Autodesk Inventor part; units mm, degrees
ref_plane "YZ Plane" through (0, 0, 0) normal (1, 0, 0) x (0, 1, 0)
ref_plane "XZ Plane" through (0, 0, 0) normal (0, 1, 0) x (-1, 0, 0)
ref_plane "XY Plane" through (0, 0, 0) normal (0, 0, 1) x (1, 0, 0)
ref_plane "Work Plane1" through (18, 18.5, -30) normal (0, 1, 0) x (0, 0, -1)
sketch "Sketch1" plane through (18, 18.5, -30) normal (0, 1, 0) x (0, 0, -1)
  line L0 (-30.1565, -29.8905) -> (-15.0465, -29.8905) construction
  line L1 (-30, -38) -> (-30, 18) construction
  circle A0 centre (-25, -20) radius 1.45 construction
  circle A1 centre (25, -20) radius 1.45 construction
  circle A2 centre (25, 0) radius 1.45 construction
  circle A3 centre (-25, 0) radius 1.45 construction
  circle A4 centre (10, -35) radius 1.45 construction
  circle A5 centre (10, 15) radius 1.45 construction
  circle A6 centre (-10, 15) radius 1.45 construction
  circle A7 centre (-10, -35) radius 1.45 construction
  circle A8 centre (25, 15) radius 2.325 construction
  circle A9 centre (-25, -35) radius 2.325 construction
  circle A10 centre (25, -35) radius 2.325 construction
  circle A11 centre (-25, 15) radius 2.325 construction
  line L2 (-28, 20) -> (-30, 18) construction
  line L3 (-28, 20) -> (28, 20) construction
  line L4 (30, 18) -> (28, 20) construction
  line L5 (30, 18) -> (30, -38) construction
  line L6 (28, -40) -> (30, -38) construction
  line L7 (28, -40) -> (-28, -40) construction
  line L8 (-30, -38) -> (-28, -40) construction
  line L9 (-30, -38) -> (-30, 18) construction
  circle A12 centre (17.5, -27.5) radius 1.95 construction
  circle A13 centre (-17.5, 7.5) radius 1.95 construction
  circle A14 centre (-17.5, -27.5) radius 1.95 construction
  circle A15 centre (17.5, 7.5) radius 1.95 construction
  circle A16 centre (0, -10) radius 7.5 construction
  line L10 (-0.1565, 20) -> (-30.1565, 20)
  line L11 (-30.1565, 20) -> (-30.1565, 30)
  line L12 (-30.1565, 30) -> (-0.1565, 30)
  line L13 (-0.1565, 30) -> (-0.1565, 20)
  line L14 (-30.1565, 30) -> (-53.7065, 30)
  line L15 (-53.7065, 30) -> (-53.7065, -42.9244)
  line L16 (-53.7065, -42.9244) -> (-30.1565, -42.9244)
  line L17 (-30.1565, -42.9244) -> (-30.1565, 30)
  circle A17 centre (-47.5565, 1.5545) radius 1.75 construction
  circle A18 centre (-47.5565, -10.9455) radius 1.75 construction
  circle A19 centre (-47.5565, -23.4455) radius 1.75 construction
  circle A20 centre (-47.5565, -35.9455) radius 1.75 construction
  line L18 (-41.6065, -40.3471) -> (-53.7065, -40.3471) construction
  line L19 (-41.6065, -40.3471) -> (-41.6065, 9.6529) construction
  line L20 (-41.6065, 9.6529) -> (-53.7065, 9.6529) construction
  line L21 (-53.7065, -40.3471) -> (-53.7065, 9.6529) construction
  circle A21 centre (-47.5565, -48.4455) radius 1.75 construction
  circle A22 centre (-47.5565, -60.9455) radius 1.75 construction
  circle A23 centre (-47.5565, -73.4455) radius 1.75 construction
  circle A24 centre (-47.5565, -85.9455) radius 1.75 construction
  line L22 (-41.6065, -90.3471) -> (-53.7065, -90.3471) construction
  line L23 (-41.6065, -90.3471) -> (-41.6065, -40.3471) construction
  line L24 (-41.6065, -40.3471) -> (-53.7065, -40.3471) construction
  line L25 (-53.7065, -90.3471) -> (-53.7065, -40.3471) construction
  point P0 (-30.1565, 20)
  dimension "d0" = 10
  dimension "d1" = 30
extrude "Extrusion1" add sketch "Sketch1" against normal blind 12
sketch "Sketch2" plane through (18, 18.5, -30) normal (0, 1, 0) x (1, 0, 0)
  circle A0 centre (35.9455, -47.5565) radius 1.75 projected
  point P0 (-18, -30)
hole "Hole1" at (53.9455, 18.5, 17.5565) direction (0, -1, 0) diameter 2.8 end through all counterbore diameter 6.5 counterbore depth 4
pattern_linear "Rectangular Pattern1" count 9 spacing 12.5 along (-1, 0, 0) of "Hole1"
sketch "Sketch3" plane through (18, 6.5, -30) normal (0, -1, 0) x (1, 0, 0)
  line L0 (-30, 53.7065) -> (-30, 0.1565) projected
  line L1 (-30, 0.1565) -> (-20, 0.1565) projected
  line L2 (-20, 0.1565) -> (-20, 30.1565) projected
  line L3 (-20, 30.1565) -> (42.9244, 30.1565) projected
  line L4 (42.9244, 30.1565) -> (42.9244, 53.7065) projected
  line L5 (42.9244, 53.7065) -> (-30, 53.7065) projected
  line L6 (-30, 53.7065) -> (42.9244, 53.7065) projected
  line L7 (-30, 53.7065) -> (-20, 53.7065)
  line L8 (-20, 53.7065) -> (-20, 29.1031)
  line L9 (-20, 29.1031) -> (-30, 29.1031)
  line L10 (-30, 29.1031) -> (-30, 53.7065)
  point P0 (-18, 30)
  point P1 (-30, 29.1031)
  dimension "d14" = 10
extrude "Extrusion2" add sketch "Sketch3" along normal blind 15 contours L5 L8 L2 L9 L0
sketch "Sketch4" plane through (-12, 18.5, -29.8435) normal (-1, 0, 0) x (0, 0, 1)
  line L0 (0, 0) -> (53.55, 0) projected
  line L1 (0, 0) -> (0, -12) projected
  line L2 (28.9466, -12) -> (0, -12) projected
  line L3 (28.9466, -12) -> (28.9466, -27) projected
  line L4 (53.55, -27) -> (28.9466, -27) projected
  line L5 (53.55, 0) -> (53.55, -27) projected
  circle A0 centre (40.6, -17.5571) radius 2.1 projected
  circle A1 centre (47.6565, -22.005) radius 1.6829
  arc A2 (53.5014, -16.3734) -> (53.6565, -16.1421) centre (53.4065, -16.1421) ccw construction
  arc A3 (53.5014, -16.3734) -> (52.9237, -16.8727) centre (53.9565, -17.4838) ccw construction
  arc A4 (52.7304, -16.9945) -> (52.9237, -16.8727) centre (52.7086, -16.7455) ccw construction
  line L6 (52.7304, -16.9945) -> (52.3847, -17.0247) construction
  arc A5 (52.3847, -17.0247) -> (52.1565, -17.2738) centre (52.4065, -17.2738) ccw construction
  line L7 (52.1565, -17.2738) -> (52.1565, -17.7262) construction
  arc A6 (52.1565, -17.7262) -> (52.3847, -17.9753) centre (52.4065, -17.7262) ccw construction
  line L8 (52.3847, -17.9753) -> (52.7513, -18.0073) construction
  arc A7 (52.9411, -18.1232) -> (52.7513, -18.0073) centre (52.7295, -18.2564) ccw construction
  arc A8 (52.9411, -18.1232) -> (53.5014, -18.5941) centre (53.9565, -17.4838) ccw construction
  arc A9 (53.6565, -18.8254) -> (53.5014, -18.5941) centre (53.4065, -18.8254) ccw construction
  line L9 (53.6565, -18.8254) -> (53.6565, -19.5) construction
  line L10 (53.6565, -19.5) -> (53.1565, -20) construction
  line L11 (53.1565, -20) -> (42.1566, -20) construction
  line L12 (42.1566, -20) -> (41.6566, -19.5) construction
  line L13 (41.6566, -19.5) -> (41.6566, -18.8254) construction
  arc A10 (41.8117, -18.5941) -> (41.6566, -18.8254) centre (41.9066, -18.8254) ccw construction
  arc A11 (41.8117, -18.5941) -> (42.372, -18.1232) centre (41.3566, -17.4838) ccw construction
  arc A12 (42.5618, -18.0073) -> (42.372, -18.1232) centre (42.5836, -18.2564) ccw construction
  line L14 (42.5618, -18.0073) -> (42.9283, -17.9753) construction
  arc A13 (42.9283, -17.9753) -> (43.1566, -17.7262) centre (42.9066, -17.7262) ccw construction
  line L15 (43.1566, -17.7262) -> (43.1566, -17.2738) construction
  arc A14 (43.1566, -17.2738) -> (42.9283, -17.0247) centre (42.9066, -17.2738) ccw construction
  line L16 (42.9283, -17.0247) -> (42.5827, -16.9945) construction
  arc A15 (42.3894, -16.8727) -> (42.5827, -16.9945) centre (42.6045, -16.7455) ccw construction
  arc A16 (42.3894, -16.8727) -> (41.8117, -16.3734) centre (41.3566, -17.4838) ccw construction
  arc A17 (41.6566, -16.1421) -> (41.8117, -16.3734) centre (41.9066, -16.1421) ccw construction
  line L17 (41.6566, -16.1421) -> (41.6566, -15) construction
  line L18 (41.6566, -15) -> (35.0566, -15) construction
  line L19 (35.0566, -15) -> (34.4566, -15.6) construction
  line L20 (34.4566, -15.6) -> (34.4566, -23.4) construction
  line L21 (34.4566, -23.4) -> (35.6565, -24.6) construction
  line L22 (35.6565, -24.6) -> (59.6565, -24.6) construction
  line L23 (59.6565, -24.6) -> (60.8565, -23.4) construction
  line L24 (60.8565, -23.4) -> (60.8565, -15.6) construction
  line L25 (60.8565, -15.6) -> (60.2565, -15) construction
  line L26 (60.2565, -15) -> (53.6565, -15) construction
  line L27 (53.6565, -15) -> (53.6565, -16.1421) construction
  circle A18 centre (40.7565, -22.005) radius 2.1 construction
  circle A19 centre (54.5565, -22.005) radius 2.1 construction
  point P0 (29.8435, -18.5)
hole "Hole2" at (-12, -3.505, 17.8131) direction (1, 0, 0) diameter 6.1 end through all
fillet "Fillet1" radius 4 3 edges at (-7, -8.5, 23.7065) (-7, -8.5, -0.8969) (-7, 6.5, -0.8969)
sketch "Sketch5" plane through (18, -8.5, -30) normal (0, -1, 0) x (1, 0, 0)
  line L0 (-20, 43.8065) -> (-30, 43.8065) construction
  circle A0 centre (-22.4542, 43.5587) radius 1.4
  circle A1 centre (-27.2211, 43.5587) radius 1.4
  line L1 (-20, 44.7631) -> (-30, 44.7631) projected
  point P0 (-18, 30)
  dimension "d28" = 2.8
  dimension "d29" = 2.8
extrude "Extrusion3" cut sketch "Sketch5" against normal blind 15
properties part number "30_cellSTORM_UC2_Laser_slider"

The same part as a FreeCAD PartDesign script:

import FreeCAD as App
import Part
import Sketcher

V = App.Vector


def edges_at(feature, points):
    """Names of the edges that pass closest to the given points."""
    edges = feature.Shape.Edges
    near = lambda p: min(range(len(edges)), key=lambda i: edges[i].distToShape(Part.Vertex(*p))[0])
    return sorted({f"Edge{near(p) + 1}" for p in points})

doc = App.newDocument("Part")
body = doc.addObject("PartDesign::Body", "Body")

sketch1 = body.newObject("Sketcher::SketchObject", "Sketch")
sketch1.AttachmentSupport = (doc.getObject("XZ_Plane"), [""])
sketch1.MapMode = "FlatFace"
sketch1.AttachmentOffset = App.Placement(V(0, 0, -18.5), App.Rotation())
sketch1.addGeometry(Part.LineSegment(V(-2, 0, 0), V(-2, -30, 0)), False)
sketch1.addGeometry(Part.LineSegment(V(-2, -30, 0), V(-12, -30, 0)), False)
sketch1.addGeometry(Part.LineSegment(V(-12, -30, 0), V(-12, 24, 0)), False)
sketch1.addGeometry(Part.LineSegment(V(-12, 24, 0), V(61, 24, 0)), False)
sketch1.addGeometry(Part.LineSegment(V(61, 24, 0), V(61, 0, 0)), False)
sketch1.addGeometry(Part.LineSegment(V(61, 0, 0), V(-2, 0, 0)), False)
sketch1.addConstraint(Sketcher.Constraint("Coincident", 0, 2, 1, 1))
sketch1.addConstraint(Sketcher.Constraint("Coincident", 1, 2, 2, 1))
sketch1.addConstraint(Sketcher.Constraint("Coincident", 2, 2, 3, 1))
sketch1.addConstraint(Sketcher.Constraint("Coincident", 3, 2, 4, 1))
sketch1.addConstraint(Sketcher.Constraint("Coincident", 4, 2, 5, 1))
sketch1.addConstraint(Sketcher.Constraint("Coincident", 5, 2, 0, 1))
sketch1.addConstraint(Sketcher.Constraint("Vertical", 0))
sketch1.addConstraint(Sketcher.Constraint("Horizontal", 1))
sketch1.addConstraint(Sketcher.Constraint("Vertical", 2))
sketch1.addConstraint(Sketcher.Constraint("Horizontal", 3))
sketch1.addConstraint(Sketcher.Constraint("Vertical", 4))
sketch1.addConstraint(Sketcher.Constraint("Horizontal", 5))
sketch1.addConstraint(Sketcher.Constraint("DistanceX", 1, 2, 1, 1, 10.0))
sketch1.addConstraint(Sketcher.Constraint("DistanceY", 0, 2, 0, 1, 30.0))
sketch1.addConstraint(Sketcher.Constraint("DistanceX", 0, 2, -1, 1, 2.0))
sketch1.addConstraint(Sketcher.Constraint("DistanceY", 2, 1, 2, 2, 53.55))
sketch1.addConstraint(Sketcher.Constraint("DistanceX", 3, 1, 3, 2, 72.9244))
sketch1.addConstraint(Sketcher.Constraint("DistanceY", 0, 2, -1, 1, 29.8435))
pad1 = body.newObject("PartDesign::Pad", "Pad")
pad1.Profile = sketch1
pad1.Length = 12

sketch2 = body.newObject("Sketcher::SketchObject", "Sketch001")
sketch2.AttachmentSupport = (doc.getObject("XZ_Plane"), [""])
sketch2.MapMode = "FlatFace"
sketch2.AttachmentOffset = App.Placement(V(0, 0, -18.5), App.Rotation())
sketch2.addGeometry(Part.Circle(V(53.9, 17.6, 0), V(0, 0, 1), 1.4), False)
sketch2.addConstraint(Sketcher.Constraint("Diameter", 0, 2.8))
sketch2.addConstraint(Sketcher.Constraint("DistanceX", -1, 1, 0, 3, 53.9455))
sketch2.addConstraint(Sketcher.Constraint("DistanceY", -1, 1, 0, 3, 17.5565))
doc.recompute()
hole = body.newObject("PartDesign::Hole", "Hole")
hole.Profile = sketch2
hole.ThreadType = "None"
hole.Diameter = 2.8
hole.DepthType = "ThroughAll"
hole.HoleCutType = "Counterbore"
hole.HoleCutDiameter = 6.5
hole.HoleCutDepth = 4
hole.Reversed = True
doc.recompute()

linearpattern = body.newObject("PartDesign::LinearPattern", "LinearPattern")
linearpattern.Originals = [hole]
linearpattern.Direction = (doc.getObject("X_Axis"), [""])
linearpattern.Mode = "offset"
linearpattern.Offset = 12.5
linearpattern.Occurrences = 9
linearpattern.Reversed = True
body.Tip = linearpattern

sketch3 = body.newObject("Sketcher::SketchObject", "Sketch002")
sketch3.AttachmentSupport = (doc.getObject("XZ_Plane"), [""])
sketch3.MapMode = "FlatFace"
sketch3.AttachmentOffset = App.Placement(V(0, 0, -6.5), App.Rotation())
sketch3.addGeometry(Part.LineSegment(V(-2, 24, 0), V(-12, 24, 0)), False)
sketch3.addGeometry(Part.LineSegment(V(-12, 24, 0), V(-12, -1, 0)), False)
sketch3.addGeometry(Part.LineSegment(V(-12, -1, 0), V(-2, -1, 0)), False)
sketch3.addGeometry(Part.LineSegment(V(-2, -1, 0), V(-2, 24, 0)), False)
sketch3.addConstraint(Sketcher.Constraint("Coincident", 0, 2, 1, 1))
sketch3.addConstraint(Sketcher.Constraint("Coincident", 1, 2, 2, 1))
sketch3.addConstraint(Sketcher.Constraint("Coincident", 2, 2, 3, 1))
sketch3.addConstraint(Sketcher.Constraint("Coincident", 3, 2, 0, 1))
sketch3.addConstraint(Sketcher.Constraint("Horizontal", 0))
sketch3.addConstraint(Sketcher.Constraint("Vertical", 1))
sketch3.addConstraint(Sketcher.Constraint("Horizontal", 2))
sketch3.addConstraint(Sketcher.Constraint("Vertical", 3))
sketch3.addConstraint(Sketcher.Constraint("DistanceX", 0, 2, 0, 1, 10.0))
sketch3.addConstraint(Sketcher.Constraint("DistanceX", 0, 2, -1, 1, 12.0))
sketch3.addConstraint(Sketcher.Constraint("DistanceY", 1, 2, 1, 1, 24.6034))
sketch3.addConstraint(Sketcher.Constraint("DistanceY", 1, 2, -1, 1, 0.897))
pad2 = body.newObject("PartDesign::Pad", "Pad001")
pad2.Profile = sketch3
pad2.Length = 15

sketch4 = body.newObject("Sketcher::SketchObject", "Sketch003")
sketch4.AttachmentSupport = (doc.getObject("YZ_Plane"), [""])
sketch4.MapMode = "FlatFace"
sketch4.AttachmentOffset = App.Placement(V(0, 0, -12), App.Rotation())
sketch4.addGeometry(Part.Circle(V(-3.5, 17.8, 0), V(0, 0, 1), 3), False)
sketch4.addConstraint(Sketcher.Constraint("Diameter", 0, 6.1))
sketch4.addConstraint(Sketcher.Constraint("DistanceX", 0, 3, -1, 1, 3.505))
sketch4.addConstraint(Sketcher.Constraint("DistanceY", -1, 1, 0, 3, 17.813))
doc.recompute()
hole2 = body.newObject("PartDesign::Hole", "Hole001")
hole2.Profile = sketch4
hole2.ThreadType = "None"
hole2.Diameter = 6.1
hole2.DepthType = "ThroughAll"
hole2.Reversed = True
doc.recompute()

fillet = body.newObject("PartDesign::Fillet", "Fillet")
fillet.Base = (hole2, edges_at(hole2, [(-7, -8.5, 23.706), (-7, -8.5, -0.897), (-7, 6.5, -0.897)]))
fillet.Radius = 4

sketch5 = body.newObject("Sketcher::SketchObject", "Sketch004")
sketch5.AttachmentSupport = (doc.getObject("XZ_Plane"), [""])
sketch5.MapMode = "FlatFace"
sketch5.AttachmentOffset = App.Placement(V(0, 0, 8.5), App.Rotation())
sketch5.addGeometry(Part.Circle(V(-4.5, 13.6, 0), V(0, 0, 1), 1.4), False)
sketch5.addGeometry(Part.Circle(V(-9.2, 13.6, 0), V(0, 0, 1), 1.4), False)
sketch5.addConstraint(Sketcher.Constraint("Equal", 0, 1))
sketch5.addConstraint(Sketcher.Constraint("Horizontal", 0, 3, 1, 3))
sketch5.addConstraint(Sketcher.Constraint("Diameter", 0, 2.8))
sketch5.addConstraint(Sketcher.Constraint("DistanceX", 1, 3, -1, 1, 9.221))
sketch5.addConstraint(Sketcher.Constraint("DistanceX", 1, 3, 0, 3, 4.767))
sketch5.addConstraint(Sketcher.Constraint("DistanceY", -1, 1, 0, 3, 13.5587))
pocket1 = body.newObject("PartDesign::Pocket", "Pocket")
pocket1.Profile = sketch5
pocket1.Length = 15

doc.recompute()
